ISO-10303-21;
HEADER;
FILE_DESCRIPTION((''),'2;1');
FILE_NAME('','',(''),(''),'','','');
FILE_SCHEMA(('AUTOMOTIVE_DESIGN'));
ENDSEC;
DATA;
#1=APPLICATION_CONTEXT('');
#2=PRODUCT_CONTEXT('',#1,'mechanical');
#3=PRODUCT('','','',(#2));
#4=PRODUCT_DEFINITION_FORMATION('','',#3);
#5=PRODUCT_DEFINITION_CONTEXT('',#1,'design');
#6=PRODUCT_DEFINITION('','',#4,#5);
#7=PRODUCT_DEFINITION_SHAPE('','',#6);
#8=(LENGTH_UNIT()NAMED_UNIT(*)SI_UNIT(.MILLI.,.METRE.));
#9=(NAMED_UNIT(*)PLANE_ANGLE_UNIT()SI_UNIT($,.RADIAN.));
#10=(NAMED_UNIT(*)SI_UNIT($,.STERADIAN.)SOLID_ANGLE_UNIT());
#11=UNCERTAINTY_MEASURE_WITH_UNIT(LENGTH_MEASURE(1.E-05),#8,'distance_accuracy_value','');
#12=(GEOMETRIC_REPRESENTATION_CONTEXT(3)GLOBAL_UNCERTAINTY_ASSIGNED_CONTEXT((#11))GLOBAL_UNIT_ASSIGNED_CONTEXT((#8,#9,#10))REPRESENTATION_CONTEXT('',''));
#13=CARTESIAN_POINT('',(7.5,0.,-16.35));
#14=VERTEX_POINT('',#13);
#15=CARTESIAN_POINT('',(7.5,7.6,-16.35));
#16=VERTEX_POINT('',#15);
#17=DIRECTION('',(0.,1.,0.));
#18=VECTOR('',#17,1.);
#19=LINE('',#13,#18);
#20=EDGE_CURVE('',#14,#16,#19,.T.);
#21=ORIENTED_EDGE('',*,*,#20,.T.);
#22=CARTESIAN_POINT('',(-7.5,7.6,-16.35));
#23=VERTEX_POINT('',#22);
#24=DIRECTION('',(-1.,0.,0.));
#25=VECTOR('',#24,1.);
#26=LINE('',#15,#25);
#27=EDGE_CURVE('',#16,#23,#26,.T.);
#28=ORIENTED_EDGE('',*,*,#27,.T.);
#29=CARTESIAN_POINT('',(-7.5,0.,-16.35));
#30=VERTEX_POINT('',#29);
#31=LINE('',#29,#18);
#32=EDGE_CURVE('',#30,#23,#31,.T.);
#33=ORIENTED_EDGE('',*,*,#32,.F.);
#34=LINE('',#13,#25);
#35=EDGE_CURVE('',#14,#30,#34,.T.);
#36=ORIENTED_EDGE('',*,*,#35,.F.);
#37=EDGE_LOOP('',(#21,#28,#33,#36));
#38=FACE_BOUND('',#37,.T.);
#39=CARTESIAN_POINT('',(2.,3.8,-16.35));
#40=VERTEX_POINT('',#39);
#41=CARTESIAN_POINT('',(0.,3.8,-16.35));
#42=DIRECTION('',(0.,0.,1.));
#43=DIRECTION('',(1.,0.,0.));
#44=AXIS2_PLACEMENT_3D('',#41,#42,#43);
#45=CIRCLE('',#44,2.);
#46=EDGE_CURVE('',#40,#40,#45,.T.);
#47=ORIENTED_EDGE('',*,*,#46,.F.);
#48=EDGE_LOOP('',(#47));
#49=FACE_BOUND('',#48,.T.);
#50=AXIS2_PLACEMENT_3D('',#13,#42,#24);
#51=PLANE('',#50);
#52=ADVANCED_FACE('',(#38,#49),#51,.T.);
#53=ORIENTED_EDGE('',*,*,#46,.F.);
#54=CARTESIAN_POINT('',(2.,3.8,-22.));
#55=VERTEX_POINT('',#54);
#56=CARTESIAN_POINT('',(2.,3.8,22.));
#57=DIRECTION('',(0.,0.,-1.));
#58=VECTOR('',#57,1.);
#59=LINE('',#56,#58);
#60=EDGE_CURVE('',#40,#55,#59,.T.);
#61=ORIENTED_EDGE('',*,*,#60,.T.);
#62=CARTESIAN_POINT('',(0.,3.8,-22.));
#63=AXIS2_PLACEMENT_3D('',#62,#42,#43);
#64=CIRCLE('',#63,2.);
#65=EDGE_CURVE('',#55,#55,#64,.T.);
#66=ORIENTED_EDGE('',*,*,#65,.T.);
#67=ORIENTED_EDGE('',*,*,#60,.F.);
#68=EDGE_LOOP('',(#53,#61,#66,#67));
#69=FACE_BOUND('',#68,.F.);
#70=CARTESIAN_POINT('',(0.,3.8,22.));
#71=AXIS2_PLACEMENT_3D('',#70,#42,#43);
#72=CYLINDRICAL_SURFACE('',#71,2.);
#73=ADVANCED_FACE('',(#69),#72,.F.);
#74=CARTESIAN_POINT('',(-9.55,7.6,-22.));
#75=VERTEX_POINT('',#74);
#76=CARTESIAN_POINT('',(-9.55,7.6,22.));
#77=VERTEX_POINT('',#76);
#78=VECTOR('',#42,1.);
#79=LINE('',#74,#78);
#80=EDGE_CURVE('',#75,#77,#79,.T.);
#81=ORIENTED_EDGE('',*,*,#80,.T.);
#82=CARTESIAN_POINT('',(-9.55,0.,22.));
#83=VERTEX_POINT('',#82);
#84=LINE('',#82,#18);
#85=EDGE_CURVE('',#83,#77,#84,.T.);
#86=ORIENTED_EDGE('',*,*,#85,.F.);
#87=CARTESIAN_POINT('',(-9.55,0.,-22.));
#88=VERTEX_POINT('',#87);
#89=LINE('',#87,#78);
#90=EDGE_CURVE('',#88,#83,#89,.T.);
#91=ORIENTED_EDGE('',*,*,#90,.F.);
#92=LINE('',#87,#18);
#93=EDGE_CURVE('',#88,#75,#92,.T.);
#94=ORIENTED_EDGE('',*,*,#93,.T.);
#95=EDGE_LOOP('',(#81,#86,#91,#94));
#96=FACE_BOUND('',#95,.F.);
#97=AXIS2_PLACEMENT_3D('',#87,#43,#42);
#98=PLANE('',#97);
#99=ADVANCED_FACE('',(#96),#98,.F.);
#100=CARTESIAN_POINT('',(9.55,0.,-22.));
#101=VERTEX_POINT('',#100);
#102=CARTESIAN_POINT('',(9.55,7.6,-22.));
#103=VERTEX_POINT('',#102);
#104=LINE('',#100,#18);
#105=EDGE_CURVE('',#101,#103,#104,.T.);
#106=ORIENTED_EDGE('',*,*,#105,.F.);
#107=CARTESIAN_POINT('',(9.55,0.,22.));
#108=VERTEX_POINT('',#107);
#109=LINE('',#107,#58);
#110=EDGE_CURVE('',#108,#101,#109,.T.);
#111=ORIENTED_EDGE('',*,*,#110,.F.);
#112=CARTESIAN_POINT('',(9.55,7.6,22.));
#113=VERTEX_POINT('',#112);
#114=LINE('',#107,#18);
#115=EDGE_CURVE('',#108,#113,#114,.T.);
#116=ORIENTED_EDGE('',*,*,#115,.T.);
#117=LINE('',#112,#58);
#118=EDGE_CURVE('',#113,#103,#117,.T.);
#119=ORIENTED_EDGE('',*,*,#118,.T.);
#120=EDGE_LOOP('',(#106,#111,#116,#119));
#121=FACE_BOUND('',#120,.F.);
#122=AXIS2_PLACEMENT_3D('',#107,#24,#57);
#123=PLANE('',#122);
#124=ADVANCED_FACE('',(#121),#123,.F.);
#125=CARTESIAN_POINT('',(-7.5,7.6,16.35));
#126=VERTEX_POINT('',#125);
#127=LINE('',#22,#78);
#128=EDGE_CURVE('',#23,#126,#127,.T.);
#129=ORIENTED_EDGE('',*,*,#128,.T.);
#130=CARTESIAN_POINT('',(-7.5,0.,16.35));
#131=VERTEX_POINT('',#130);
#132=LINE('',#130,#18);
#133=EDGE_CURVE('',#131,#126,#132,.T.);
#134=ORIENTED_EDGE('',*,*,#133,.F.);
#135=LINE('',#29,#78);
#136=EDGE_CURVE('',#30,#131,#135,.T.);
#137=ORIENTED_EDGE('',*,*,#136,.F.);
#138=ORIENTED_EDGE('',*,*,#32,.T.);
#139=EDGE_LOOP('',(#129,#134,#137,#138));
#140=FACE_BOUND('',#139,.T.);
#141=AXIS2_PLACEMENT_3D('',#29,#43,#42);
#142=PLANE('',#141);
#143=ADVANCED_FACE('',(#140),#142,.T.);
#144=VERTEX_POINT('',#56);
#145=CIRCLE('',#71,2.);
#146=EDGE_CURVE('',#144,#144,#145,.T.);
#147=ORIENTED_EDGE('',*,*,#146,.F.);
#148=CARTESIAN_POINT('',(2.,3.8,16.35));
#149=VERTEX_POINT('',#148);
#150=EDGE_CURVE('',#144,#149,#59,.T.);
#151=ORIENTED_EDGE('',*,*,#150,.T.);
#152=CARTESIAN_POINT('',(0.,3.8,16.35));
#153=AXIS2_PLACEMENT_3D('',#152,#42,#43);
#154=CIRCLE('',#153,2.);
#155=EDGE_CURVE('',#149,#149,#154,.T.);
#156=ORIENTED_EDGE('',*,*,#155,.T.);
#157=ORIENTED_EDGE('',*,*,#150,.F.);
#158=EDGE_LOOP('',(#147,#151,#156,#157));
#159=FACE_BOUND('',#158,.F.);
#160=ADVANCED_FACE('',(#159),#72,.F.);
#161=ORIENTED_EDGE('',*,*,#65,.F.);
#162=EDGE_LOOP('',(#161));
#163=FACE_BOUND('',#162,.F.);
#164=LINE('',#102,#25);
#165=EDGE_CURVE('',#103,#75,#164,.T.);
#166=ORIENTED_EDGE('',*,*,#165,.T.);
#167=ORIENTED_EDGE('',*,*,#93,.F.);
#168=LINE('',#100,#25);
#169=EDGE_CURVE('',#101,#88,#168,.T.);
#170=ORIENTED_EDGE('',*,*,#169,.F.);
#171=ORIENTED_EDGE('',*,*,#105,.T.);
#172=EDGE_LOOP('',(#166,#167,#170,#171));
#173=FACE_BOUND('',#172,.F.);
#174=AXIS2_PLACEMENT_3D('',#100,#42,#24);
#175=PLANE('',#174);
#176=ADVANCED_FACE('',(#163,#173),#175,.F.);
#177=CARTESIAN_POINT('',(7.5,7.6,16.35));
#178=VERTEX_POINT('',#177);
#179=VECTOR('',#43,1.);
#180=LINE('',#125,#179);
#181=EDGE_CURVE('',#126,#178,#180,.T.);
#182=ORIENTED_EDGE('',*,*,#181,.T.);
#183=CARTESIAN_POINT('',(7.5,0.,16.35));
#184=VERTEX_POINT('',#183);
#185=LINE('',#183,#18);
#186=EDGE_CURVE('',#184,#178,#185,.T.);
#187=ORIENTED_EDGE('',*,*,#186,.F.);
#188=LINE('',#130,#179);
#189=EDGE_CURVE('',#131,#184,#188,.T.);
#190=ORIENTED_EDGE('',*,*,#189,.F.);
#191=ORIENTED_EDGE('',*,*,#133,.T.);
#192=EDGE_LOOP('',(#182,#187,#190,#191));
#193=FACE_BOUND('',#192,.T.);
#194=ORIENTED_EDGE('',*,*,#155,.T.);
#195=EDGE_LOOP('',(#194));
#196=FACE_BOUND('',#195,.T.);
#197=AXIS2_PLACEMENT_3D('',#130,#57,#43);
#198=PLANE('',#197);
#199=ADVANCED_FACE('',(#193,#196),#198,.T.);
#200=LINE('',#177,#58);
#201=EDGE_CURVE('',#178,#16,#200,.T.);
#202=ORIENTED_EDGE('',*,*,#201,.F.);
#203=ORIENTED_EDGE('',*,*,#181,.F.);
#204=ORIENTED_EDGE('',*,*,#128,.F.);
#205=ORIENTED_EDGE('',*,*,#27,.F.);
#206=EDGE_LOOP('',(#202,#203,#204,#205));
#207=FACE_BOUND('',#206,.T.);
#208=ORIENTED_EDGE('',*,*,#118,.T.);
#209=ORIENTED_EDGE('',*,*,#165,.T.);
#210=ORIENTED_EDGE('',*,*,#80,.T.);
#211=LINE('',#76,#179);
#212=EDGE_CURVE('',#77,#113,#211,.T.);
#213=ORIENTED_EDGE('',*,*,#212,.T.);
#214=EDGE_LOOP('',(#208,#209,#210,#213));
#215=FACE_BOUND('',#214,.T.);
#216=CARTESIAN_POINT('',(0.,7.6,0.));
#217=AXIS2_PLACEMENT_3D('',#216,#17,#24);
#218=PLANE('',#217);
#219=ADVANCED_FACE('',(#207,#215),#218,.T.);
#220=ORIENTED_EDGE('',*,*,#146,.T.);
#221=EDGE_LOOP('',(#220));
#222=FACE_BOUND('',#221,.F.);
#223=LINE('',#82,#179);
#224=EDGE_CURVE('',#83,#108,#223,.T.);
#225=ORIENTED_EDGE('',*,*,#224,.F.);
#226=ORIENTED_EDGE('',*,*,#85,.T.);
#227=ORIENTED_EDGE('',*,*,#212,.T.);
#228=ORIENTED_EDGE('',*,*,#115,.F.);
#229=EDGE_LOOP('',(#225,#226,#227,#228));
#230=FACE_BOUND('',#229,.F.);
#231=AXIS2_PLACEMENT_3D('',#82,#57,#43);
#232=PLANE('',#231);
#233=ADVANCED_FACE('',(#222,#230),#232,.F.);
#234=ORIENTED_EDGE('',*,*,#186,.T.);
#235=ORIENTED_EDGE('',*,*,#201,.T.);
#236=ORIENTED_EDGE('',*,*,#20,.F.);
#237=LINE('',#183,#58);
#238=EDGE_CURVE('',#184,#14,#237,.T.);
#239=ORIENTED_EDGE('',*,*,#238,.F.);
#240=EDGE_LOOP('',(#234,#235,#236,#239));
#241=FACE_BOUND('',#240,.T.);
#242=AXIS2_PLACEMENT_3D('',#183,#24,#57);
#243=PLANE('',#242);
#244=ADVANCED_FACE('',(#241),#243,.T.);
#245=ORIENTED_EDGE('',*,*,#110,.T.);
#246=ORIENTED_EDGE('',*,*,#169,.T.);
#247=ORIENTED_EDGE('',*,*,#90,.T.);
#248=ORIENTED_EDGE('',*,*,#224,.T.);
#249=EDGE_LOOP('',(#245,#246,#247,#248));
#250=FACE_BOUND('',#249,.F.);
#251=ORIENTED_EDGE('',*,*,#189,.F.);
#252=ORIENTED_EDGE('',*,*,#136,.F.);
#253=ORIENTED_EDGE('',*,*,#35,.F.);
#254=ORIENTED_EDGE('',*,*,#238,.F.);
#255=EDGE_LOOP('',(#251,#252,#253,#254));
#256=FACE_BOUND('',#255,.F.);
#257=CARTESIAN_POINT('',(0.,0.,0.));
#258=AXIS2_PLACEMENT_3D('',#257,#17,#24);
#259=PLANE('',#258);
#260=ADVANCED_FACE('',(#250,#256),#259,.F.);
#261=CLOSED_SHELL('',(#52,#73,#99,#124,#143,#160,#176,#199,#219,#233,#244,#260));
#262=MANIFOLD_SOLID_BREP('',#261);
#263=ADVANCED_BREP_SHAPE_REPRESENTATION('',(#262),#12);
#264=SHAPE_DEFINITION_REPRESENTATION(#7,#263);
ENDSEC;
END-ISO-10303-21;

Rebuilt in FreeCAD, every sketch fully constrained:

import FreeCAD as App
import Part
import Sketcher

V = App.Vector


def add_polygon(sketch, points):
    """Adds a closed chain of lines whose ends are joined by coincident constraints."""
    first, n = sketch.GeometryCount, len(points)
    for a, b in zip(points, points[1:] + points[:1]):
        sketch.addGeometry(Part.LineSegment(App.Vector(*a, 0), App.Vector(*b, 0)), False)
    for i in range(n):
        sketch.addConstraint(Sketcher.Constraint("Coincident", first + i, 2, first + (i + 1) % n, 1))

doc = App.newDocument("Part")
body = doc.addObject("PartDesign::Body", "Body")

sketch1 = body.newObject("Sketcher::SketchObject", "Sketch")
sketch1.AttachmentSupport = (doc.getObject("XZ_Plane"), [""])
sketch1.MapMode = "FlatFace"
add_polygon(sketch1, [(-9.55, -22), (-9.55, 22), (9.55, 22), (9.55, -22)])
add_polygon(sketch1, [(7.5, 16.35), (-7.5, 16.35), (-7.5, -16.35), (7.5, -16.35)])
sketch1.addConstraint([
    Sketcher.Constraint("Vertical", 0),
    Sketcher.Constraint("Horizontal", 1),
    Sketcher.Constraint("Vertical", 2),
    Sketcher.Constraint("Horizontal", 3),
    Sketcher.Constraint("Horizontal", 4),
    Sketcher.Constraint("Vertical", 5),
    Sketcher.Constraint("Horizontal", 6),
    Sketcher.Constraint("Vertical", 7),
    Sketcher.Constraint("Symmetric", 0, 2, 2, 2, -1, 1),
    Sketcher.Constraint("Symmetric", 4, 2, 6, 2, -1, 1),
    Sketcher.Constraint("DistanceX", 4, 2, 4, 1, 15.0),
    Sketcher.Constraint("DistanceY", 0, 1, 0, 2, 44.0),
    Sketcher.Constraint("DistanceX", 1, 1, 1, 2, 19.1),
    Sketcher.Constraint("DistanceY", 5, 2, 5, 1, 32.7),
])
pad1 = body.newObject("PartDesign::Pad", "Pad")
pad1.Profile = sketch1
pad1.Length = 7.6
pad1.Reversed = True

sketch2 = body.newObject("Sketcher::SketchObject", "Sketch001")
sketch2.AttachmentSupport = (doc.getObject("XY_Plane"), [""])
sketch2.MapMode = "FlatFace"
sketch2.AttachmentOffset = App.Placement(V(0, 0, 22), App.Rotation())
sketch2.addGeometry(Part.Circle(V(0, 3.8, 0), V(0, 0, 1), 2), False)
sketch2.addConstraint([
    Sketcher.Constraint("PointOnObject", 0, 3, -2),
    Sketcher.Constraint("Diameter", 0, 4.0),
    Sketcher.Constraint("DistanceY", -1, 1, 0, 3, 3.8),
])
pocket1 = body.newObject("PartDesign::Pocket", "Pocket")
pocket1.Profile = sketch2
pocket1.Type = "ThroughAll"

doc.recompute()
